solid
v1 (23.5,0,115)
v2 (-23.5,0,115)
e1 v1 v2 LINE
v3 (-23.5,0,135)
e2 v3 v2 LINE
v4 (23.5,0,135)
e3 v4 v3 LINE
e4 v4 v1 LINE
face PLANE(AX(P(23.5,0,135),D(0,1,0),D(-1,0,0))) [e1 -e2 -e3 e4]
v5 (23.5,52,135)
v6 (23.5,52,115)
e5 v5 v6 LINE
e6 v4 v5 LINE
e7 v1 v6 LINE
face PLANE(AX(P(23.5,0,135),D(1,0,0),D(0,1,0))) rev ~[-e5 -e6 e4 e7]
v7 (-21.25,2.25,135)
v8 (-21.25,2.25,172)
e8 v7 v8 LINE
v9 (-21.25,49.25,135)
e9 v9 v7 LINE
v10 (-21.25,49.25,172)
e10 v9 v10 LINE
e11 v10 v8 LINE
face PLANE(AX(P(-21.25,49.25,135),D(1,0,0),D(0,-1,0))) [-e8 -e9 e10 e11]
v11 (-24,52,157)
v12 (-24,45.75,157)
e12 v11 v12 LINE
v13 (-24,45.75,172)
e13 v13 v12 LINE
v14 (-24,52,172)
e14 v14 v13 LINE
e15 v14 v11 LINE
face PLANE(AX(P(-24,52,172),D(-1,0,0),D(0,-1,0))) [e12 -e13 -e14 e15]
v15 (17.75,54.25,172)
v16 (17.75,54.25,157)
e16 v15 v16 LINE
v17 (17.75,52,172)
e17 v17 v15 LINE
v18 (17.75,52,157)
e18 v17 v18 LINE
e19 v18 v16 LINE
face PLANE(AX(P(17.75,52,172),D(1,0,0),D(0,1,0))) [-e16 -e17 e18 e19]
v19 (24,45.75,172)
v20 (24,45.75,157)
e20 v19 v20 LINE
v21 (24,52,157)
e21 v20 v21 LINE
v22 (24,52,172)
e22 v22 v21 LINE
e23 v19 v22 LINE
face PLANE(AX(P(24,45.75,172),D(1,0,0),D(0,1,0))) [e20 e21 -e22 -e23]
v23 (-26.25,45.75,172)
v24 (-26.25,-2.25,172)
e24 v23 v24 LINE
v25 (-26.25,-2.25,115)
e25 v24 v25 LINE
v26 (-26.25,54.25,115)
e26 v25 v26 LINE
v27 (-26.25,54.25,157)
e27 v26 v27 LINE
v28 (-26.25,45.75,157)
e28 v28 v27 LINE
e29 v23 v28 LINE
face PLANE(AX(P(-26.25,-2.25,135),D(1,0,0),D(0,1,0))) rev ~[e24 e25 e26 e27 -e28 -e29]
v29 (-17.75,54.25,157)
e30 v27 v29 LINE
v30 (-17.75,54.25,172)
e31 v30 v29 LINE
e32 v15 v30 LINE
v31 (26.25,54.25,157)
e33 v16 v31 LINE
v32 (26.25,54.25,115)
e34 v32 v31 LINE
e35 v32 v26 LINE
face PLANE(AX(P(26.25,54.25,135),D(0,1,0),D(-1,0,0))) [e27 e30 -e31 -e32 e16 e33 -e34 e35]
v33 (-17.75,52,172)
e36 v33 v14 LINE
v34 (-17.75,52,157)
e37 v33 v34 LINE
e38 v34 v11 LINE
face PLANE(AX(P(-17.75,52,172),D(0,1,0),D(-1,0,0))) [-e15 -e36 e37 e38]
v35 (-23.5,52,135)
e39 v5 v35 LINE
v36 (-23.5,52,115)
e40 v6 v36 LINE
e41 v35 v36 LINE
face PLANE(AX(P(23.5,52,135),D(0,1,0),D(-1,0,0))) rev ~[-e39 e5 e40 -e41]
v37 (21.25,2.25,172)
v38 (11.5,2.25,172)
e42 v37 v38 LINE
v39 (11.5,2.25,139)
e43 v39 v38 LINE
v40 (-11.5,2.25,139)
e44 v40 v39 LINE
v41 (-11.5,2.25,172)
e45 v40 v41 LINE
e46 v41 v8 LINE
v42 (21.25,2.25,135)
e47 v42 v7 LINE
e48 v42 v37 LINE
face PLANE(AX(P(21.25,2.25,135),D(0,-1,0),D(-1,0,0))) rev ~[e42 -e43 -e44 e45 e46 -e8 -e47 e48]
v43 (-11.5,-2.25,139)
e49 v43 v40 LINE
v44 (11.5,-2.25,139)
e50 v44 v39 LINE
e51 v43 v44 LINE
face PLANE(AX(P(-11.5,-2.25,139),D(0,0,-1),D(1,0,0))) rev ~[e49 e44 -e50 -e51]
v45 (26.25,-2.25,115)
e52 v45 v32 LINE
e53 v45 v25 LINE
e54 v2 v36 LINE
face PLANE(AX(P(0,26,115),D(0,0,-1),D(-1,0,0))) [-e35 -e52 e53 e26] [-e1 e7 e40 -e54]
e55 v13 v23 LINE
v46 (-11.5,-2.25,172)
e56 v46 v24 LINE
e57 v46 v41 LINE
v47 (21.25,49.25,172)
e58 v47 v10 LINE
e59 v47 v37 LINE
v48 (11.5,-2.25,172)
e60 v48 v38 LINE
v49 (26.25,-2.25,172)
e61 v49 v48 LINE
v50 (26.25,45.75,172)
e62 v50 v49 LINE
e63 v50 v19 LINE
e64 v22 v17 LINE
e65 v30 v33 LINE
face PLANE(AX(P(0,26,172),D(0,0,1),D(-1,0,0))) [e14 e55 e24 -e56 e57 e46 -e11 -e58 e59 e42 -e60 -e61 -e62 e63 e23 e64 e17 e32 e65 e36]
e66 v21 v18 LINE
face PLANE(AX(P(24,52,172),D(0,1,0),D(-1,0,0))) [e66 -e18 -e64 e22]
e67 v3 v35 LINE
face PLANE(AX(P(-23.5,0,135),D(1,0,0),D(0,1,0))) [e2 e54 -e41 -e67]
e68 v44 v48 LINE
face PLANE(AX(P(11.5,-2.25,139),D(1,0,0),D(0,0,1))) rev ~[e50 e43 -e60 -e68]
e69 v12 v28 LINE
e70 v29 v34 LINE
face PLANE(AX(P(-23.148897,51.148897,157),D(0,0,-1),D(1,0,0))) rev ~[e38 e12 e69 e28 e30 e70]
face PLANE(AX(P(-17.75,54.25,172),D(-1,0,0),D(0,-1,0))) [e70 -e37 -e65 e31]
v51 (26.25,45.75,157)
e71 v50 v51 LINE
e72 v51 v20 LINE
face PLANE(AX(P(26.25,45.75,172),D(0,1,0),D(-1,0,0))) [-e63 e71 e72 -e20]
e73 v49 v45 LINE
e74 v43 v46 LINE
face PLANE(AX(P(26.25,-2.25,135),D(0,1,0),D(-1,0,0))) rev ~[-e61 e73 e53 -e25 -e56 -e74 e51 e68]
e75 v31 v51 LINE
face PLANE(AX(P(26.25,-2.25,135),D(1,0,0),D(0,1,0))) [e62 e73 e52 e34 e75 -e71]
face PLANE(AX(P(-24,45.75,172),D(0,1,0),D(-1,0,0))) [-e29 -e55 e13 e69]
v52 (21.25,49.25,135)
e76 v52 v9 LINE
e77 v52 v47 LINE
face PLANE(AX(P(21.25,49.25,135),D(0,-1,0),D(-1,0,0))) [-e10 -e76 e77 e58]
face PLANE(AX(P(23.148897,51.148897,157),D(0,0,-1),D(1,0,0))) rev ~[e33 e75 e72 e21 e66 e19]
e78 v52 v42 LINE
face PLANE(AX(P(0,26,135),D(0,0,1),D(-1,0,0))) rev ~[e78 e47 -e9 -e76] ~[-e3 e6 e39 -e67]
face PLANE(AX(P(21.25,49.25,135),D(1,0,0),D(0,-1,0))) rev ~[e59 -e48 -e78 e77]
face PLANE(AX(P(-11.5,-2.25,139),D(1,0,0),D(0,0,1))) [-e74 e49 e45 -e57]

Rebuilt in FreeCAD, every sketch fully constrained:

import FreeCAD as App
import Part
import Sketcher

V = App.Vector

doc = App.newDocument("Part")
body = doc.addObject("PartDesign::Body", "Body")

# Sketch on XY plane
sketch1 = doc.addObject("Sketcher::SketchObject", "Sketch")
body.addObject(sketch1)
sketch1.AttachmentSupport = (doc.XY_Plane, [""])
sketch1.MapMode = "FlatFace"
sketch1.addGeometry([
    Part.LineSegment(V(-26, 2, 0), V(-26, -54, 0)),  # 0
    Part.LineSegment(V(-26, -54, 0), V(26, -54, 0)),  # 1
    Part.LineSegment(V(26, -54, 0), V(26, 2, 0)),  # 2
    Part.LineSegment(V(26, 2, 0), V(-26, 2, 0)),  # 3
    Part.LineSegment(V(21, -49, 0), V(-21, -49, 0)),  # 4
    Part.LineSegment(V(-21, -49, 0), V(-21, -2, 0)),  # 5
    Part.LineSegment(V(-21, -2, 0), V(21, -2, 0)),  # 6
    Part.LineSegment(V(21, -2, 0), V(21, -49, 0)),  # 7
], False)
sketch1.addConstraint([
    Sketcher.Constraint("Coincident", 0, 2, 1, 1),
    Sketcher.Constraint("Coincident", 1, 2, 2, 1),
    Sketcher.Constraint("Coincident", 2, 2, 3, 1),
    Sketcher.Constraint("Coincident", 3, 2, 0, 1),
    Sketcher.Constraint("Coincident", 4, 2, 5, 1),
    Sketcher.Constraint("Coincident", 5, 2, 6, 1),
    Sketcher.Constraint("Coincident", 6, 2, 7, 1),
    Sketcher.Constraint("Coincident", 7, 2, 4, 1),
    Sketcher.Constraint("Vertical", 0),
    Sketcher.Constraint("Horizontal", 1),
    Sketcher.Constraint("Vertical", 2),
    Sketcher.Constraint("Horizontal", 3),
    Sketcher.Constraint("Horizontal", 4),
    Sketcher.Constraint("Vertical", 5),
    Sketcher.Constraint("Horizontal", 6),
    Sketcher.Constraint("Vertical", 7),
    Sketcher.Constraint("DistanceY", 5, 1, 5, 2, 47.0),
    Sketcher.Constraint("DistanceX", 1, 1, 1, 2, 52.5),
    Sketcher.Constraint("DistanceX", 4, 2, 4, 1, 42.5),
    Sketcher.Constraint("DistanceY", 0, 2, 0, 1, 56.5),
    Sketcher.Constraint("DistanceX", 0, 2, 4, 2, 5.0),
    Sketcher.Constraint("DistanceY", 0, 2, 4, 2, 5.0),
    Sketcher.Constraint("DistanceX", 0, 2, -1, 1, 26.25),
    Sketcher.Constraint("DistanceY", 0, 2, -1, 1, 54.25),
])
pad1 = doc.addObject("PartDesign::Pad", "Pad")
body.addObject(pad1)
pad1.Profile = sketch1
pad1.Length = 37

# Sketch on XZ plane
sketch2 = doc.addObject("Sketcher::SketchObject", "Sketch001")
body.addObject(sketch2)
sketch2.AttachmentSupport = (doc.XZ_Plane, [""])
sketch2.MapMode = "FlatFace"
sketch2.AttachmentOffset = App.Placement(V(0, 0, -2.25), App.Rotation())
sketch2.addGeometry([
    Part.LineSegment(V(12, 37, 0), V(12, 4, 0)),
    Part.LineSegment(V(12, 4, 0), V(-12, 4, 0)),
    Part.LineSegment(V(-12, 4, 0), V(-12, 37, 0)),
    Part.LineSegment(V(-12, 37, 0), V(12, 37, 0)),
], False)
sketch2.addConstraint([
    Sketcher.Constraint("Coincident", 0, 2, 1, 1),
    Sketcher.Constraint("Coincident", 1, 2, 2, 1),
    Sketcher.Constraint("Coincident", 2, 2, 3, 1),
    Sketcher.Constraint("Coincident", 3, 2, 0, 1),
    Sketcher.Constraint("Vertical", 0),
    Sketcher.Constraint("Horizontal", 1),
    Sketcher.Constraint("Vertical", 2),
    Sketcher.Constraint("Horizontal", 3),
    Sketcher.Constraint("DistanceX", 1, 2, 1, 1, 23.0),
    Sketcher.Constraint("DistanceY", 0, 2, 0, 1, 33.0),
    Sketcher.Constraint("DistanceY", -1, 1, 0, 2, 4.0),
    Sketcher.Constraint("DistanceX", -1, 1, 0, 2, 11.5),
])
pocket1 = doc.addObject("PartDesign::Pocket", "Pocket")
body.addObject(pocket1)
pocket1.Profile = sketch2
pocket1.Length = 5
pocket1.Reversed = True

# Sketch on XY plane
sketch3 = doc.addObject("Sketcher::SketchObject", "Sketch002")
body.addObject(sketch3)
sketch3.AttachmentSupport = (doc.XY_Plane, [""])
sketch3.MapMode = "FlatFace"
sketch3.addGeometry([
    Part.LineSegment(V(-26, -54, 0), V(-26, 2, 0)),  # 0
    Part.LineSegment(V(-26, 2, 0), V(26, 2, 0)),  # 1
    Part.LineSegment(V(26, 2, 0), V(26, -54, 0)),  # 2
    Part.LineSegment(V(26, -54, 0), V(-26, -54, 0)),  # 3
    Part.LineSegment(V(24, 0, 0), V(-24, 0, 0)),  # 4
    Part.LineSegment(V(-24, 0, 0), V(-24, -52, 0)),  # 5
    Part.LineSegment(V(-24, -52, 0), V(24, -52, 0)),  # 6
    Part.LineSegment(V(24, -52, 0), V(24, 0, 0)),  # 7
], False)
sketch3.addConstraint([
    Sketcher.Constraint("Coincident", 0, 2, 1, 1),
    Sketcher.Constraint("Coincident", 1, 2, 2, 1),
    Sketcher.Constraint("Coincident", 2, 2, 3, 1),
    Sketcher.Constraint("Coincident", 3, 2, 0, 1),
    Sketcher.Constraint("Coincident", 4, 2, 5, 1),
    Sketcher.Constraint("Coincident", 5, 2, 6, 1),
    Sketcher.Constraint("Coincident", 6, 2, 7, 1),
    Sketcher.Constraint("Coincident", 7, 2, 4, 1),
    Sketcher.Constraint("Vertical", 0),
    Sketcher.Constraint("Horizontal", 1),
    Sketcher.Constraint("Vertical", 2),
    Sketcher.Constraint("Horizontal", 3),
    Sketcher.Constraint("Horizontal", 4),
    Sketcher.Constraint("Vertical", 5),
    Sketcher.Constraint("Horizontal", 6),
    Sketcher.Constraint("Vertical", 7),
    Sketcher.Constraint("Symmetric", 4, 2, 7, 2, -1, 1),
    Sketcher.Constraint("DistanceX", 4, 2, 4, 1, 47.0),
    Sketcher.Constraint("DistanceY", 5, 2, 5, 1, 52.0),
    Sketcher.Constraint("DistanceX", 1, 1, 1, 2, 52.5),
    Sketcher.Constraint("DistanceY", 0, 1, 0, 2, 56.5),
    Sketcher.Constraint("DistanceX", 0, 2, -1, 1, 26.25),
    Sketcher.Constraint("DistanceY", -1, 1, 0, 2, 2.25),
])
pad2 = doc.addObject("PartDesign::Pad", "Pad001")
body.addObject(pad2)
pad2.Profile = sketch3
pad2.Length = 20
pad2.Reversed = True

# Sketch on XY plane
sketch4 = doc.addObject("Sketcher::SketchObject", "Sketch003")
body.addObject(sketch4)
sketch4.AttachmentSupport = (doc.XY_Plane, [""])
sketch4.MapMode = "FlatFace"
sketch4.AttachmentOffset = App.Placement(V(0, 0, 37), App.Rotation())
sketch4.addGeometry([
    Part.LineSegment(V(-26.2, -45.8, 0), V(-26.2, -54.2, 0)),  # 0
    Part.LineSegment(V(-26.2, -54.2, 0), V(-17.8, -54.2, 0)),  # 1
    Part.LineSegment(V(-17.8, -54.2, 0), V(-17.8, -52, 0)),  # 2
    Part.LineSegment(V(-17.8, -52, 0), V(-24, -52, 0)),  # 3
    Part.LineSegment(V(-24, -52, 0), V(-24, -45.8, 0)),  # 4
    Part.LineSegment(V(-24, -45.8, 0), V(-26.2, -45.8, 0)),  # 5
    Part.LineSegment(V(17.8, -54.2, 0), V(26.2, -54.2, 0)),  # 6
    Part.LineSegment(V(26.2, -54.2, 0), V(26.2, -45.8, 0)),  # 7
    Part.LineSegment(V(26.2, -45.8, 0), V(24, -45.8, 0)),  # 8
    Part.LineSegment(V(24, -45.8, 0), V(24, -52, 0)),  # 9
    Part.LineSegment(V(24, -52, 0), V(17.8, -52, 0)),  # 10
    Part.LineSegment(V(17.8, -52, 0), V(17.8, -54.2, 0)),  # 11
], False)
sketch4.addConstraint([
    Sketcher.Constraint("Coincident", 0, 2, 1, 1),
    Sketcher.Constraint("Coincident", 1, 2, 2, 1),
    Sketcher.Constraint("Coincident", 2, 2, 3, 1),
    Sketcher.Constraint("Coincident", 3, 2, 4, 1),
    Sketcher.Constraint("Coincident", 4, 2, 5, 1),
    Sketcher.Constraint("Coincident", 5, 2, 0, 1),
    Sketcher.Constraint("Coincident", 6, 2, 7, 1),
    Sketcher.Constraint("Coincident", 7, 2, 8, 1),
    Sketcher.Constraint("Coincident", 8, 2, 9, 1),
    Sketcher.Constraint("Coincident", 9, 2, 10, 1),
    Sketcher.Constraint("Coincident", 10, 2, 11, 1),
    Sketcher.Constraint("Coincident", 11, 2, 6, 1),
    Sketcher.Constraint("Vertical", 0),
    Sketcher.Constraint("Horizontal", 1),
    Sketcher.Constraint("Vertical", 2),
    Sketcher.Constraint("Horizontal", 3),
    Sketcher.Constraint("Vertical", 4),
    Sketcher.Constraint("Horizontal", 5),
    Sketcher.Constraint("Horizontal", 6),
    Sketcher.Constraint("Vertical", 7),
    Sketcher.Constraint("Horizontal", 8),
    Sketcher.Constraint("Vertical", 9),
    Sketcher.Constraint("Horizontal", 10),
    Sketcher.Constraint("Vertical", 11),
    Sketcher.Constraint("Symmetric", 0, 2, 6, 2, -2),
    Sketcher.Constraint("Symmetric", 4, 2, 8, 2, -2),
    Sketcher.Constraint("Symmetric", 2, 2, 10, 2, -2),
    Sketcher.Constraint("Equal", 6, 0),
    Sketcher.Constraint("Equal", 8, 2),
    Sketcher.Constraint("DistanceX", 1, 1, 1, 2, 8.5),
    Sketcher.Constraint("DistanceY", 2, 2, -1, 1, 52.0),
    Sketcher.Constraint("DistanceX", 3, 2, -1, 1, 24.0),
    Sketcher.Constraint("DistanceX", 1, 2, 6, 2, 44.0),
])
pocket2 = doc.addObject("PartDesign::Pocket", "Pocket001")
body.addObject(pocket2)
pocket2.Profile = sketch4
pocket2.Length = 15
body2 = doc.addObject("PartDesign::Body", "Body001")
doc.recompute()

body.Placement = App.Placement(V(0, 0, 135), App.Rotation(V(0, 0, 1), 180))
boolean = doc.addObject("PartDesign::Boolean", "Boolean")
body2.addObject(boolean)
boolean.Type = "Fuse"
boolean.addObjects([body])

doc.recompute()
